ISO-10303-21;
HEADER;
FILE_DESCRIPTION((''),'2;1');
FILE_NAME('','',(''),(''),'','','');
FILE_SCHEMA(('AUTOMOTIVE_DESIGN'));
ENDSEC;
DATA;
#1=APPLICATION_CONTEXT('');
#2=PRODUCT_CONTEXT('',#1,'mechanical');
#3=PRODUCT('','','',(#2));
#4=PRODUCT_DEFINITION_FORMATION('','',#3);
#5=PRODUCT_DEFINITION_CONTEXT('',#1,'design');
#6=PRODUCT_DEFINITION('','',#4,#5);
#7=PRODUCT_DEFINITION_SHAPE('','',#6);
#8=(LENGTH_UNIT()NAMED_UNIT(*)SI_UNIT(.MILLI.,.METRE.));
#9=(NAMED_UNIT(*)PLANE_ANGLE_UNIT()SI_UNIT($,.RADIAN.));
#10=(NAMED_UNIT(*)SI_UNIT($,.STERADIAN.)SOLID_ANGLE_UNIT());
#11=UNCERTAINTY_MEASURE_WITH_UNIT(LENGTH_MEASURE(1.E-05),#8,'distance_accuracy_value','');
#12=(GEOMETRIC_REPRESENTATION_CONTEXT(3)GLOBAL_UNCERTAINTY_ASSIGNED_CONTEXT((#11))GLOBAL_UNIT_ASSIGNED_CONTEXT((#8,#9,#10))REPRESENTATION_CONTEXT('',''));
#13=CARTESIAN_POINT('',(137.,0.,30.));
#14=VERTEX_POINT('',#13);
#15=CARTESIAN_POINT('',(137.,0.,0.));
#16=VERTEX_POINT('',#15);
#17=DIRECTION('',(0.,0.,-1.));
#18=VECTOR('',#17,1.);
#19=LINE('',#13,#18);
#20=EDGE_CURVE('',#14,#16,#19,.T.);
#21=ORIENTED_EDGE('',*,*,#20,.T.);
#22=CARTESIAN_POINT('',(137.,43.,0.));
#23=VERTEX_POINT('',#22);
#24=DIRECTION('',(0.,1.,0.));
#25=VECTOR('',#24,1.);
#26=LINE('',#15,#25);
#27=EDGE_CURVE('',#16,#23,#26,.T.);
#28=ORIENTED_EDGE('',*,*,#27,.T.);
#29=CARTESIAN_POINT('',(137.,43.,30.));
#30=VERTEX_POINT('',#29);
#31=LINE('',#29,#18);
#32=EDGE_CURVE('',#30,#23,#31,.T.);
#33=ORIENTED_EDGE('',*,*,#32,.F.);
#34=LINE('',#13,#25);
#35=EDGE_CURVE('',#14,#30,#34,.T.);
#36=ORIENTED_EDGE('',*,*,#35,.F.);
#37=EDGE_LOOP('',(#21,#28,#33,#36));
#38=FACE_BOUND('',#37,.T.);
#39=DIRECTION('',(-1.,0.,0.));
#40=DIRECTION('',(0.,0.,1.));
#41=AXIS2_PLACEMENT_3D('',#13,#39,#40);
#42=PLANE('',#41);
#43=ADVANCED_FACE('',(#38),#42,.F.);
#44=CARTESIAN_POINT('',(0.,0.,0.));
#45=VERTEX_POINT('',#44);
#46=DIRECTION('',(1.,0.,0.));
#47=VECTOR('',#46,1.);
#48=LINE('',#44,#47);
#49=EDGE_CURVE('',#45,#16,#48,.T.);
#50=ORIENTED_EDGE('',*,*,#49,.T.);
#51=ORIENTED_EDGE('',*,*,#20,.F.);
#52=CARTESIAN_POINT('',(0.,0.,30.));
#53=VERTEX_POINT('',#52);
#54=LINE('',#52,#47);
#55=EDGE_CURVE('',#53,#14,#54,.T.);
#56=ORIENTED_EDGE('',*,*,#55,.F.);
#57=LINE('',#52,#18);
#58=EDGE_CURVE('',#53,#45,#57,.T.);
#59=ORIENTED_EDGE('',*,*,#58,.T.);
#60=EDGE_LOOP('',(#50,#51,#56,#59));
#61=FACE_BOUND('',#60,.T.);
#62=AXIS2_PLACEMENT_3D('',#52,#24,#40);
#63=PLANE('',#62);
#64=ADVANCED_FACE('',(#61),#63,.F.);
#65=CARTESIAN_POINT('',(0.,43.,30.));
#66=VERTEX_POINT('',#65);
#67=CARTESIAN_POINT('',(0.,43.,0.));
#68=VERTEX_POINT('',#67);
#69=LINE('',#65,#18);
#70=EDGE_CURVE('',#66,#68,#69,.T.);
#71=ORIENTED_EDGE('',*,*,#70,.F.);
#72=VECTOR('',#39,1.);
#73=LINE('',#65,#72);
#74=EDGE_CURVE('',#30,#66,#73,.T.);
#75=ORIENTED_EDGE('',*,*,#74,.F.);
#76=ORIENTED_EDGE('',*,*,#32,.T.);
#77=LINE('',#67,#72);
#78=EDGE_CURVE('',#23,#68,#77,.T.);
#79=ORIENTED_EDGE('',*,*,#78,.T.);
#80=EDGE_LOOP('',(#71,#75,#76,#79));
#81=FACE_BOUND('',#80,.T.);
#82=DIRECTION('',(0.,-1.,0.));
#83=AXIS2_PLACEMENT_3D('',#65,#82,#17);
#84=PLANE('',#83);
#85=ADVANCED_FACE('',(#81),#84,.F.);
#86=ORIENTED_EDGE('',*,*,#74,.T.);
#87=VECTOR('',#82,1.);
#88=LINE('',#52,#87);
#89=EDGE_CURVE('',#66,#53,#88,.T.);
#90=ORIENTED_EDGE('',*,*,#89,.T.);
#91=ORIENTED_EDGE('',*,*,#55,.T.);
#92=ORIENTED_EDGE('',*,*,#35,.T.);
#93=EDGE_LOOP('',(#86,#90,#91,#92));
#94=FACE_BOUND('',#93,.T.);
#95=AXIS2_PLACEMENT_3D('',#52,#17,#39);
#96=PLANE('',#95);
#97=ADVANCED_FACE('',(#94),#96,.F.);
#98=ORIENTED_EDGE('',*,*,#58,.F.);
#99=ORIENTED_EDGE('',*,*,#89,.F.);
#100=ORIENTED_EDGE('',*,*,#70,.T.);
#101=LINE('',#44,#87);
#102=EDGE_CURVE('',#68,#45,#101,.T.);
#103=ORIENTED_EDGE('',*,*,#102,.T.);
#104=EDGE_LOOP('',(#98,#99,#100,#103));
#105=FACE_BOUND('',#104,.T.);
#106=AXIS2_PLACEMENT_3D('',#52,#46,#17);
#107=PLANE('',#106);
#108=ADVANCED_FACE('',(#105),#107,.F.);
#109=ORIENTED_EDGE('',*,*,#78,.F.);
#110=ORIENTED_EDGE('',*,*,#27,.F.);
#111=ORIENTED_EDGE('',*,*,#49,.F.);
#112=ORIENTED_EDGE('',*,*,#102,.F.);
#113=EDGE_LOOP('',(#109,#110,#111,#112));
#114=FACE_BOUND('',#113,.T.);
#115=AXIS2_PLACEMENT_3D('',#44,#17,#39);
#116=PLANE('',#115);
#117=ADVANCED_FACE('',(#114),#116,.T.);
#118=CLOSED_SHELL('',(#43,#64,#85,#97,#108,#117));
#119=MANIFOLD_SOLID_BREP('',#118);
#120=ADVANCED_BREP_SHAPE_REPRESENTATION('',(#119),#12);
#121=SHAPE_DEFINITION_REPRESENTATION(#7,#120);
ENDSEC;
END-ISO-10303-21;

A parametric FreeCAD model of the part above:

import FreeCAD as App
import Part
import Sketcher
from FreeCAD import Vector
Q = App.Units.Quantity


def add_polygon(sketch, points):
    """Adds a closed chain of lines whose ends are joined by coincident constraints."""
    first, n = sketch.GeometryCount, len(points)
    for a, b in zip(points, points[1:] + points[:1]):
        sketch.addGeometry(Part.LineSegment(App.Vector(*a, 0), App.Vector(*b, 0)), False)
    for i in range(n):
        sketch.addConstraint(Sketcher.Constraint("Coincident", first + i, 2, first + (i + 1) % n, 1))

doc = App.newDocument("Part")
body = doc.addObject("PartDesign::Body", "Body")

# Sketch on XY plane
sketch1 = body.newObject("Sketcher::SketchObject", "Sketch")
sketch1.AttachmentSupport = (doc.getObject("XY_Plane"), [""])
sketch1.MapMode = "FlatFace"
add_polygon(sketch1, [(0, 43), (0, 0), (137, 0), (137, 43)])  # lines 0-3
sketch1.addConstraint(Sketcher.Constraint("Vertical", 0))
sketch1.addConstraint(Sketcher.Constraint("Horizontal", 1))
sketch1.addConstraint(Sketcher.Constraint("Vertical", 2))
sketch1.addConstraint(Sketcher.Constraint("Horizontal", 3))
sketch1.addConstraint(Sketcher.Constraint("Coincident", 0, 2, -1, 1))
sketch1.addConstraint(Sketcher.Constraint("DistanceX", 1, 1, 1, 2, Q("137 mm")))
sketch1.addConstraint(Sketcher.Constraint("DistanceY", 0, 2, 0, 1, Q("43 mm")))
pad1 = body.newObject("PartDesign::Pad", "Pad")
pad1.Profile = sketch1
pad1.Length = 30

doc.recompute()
